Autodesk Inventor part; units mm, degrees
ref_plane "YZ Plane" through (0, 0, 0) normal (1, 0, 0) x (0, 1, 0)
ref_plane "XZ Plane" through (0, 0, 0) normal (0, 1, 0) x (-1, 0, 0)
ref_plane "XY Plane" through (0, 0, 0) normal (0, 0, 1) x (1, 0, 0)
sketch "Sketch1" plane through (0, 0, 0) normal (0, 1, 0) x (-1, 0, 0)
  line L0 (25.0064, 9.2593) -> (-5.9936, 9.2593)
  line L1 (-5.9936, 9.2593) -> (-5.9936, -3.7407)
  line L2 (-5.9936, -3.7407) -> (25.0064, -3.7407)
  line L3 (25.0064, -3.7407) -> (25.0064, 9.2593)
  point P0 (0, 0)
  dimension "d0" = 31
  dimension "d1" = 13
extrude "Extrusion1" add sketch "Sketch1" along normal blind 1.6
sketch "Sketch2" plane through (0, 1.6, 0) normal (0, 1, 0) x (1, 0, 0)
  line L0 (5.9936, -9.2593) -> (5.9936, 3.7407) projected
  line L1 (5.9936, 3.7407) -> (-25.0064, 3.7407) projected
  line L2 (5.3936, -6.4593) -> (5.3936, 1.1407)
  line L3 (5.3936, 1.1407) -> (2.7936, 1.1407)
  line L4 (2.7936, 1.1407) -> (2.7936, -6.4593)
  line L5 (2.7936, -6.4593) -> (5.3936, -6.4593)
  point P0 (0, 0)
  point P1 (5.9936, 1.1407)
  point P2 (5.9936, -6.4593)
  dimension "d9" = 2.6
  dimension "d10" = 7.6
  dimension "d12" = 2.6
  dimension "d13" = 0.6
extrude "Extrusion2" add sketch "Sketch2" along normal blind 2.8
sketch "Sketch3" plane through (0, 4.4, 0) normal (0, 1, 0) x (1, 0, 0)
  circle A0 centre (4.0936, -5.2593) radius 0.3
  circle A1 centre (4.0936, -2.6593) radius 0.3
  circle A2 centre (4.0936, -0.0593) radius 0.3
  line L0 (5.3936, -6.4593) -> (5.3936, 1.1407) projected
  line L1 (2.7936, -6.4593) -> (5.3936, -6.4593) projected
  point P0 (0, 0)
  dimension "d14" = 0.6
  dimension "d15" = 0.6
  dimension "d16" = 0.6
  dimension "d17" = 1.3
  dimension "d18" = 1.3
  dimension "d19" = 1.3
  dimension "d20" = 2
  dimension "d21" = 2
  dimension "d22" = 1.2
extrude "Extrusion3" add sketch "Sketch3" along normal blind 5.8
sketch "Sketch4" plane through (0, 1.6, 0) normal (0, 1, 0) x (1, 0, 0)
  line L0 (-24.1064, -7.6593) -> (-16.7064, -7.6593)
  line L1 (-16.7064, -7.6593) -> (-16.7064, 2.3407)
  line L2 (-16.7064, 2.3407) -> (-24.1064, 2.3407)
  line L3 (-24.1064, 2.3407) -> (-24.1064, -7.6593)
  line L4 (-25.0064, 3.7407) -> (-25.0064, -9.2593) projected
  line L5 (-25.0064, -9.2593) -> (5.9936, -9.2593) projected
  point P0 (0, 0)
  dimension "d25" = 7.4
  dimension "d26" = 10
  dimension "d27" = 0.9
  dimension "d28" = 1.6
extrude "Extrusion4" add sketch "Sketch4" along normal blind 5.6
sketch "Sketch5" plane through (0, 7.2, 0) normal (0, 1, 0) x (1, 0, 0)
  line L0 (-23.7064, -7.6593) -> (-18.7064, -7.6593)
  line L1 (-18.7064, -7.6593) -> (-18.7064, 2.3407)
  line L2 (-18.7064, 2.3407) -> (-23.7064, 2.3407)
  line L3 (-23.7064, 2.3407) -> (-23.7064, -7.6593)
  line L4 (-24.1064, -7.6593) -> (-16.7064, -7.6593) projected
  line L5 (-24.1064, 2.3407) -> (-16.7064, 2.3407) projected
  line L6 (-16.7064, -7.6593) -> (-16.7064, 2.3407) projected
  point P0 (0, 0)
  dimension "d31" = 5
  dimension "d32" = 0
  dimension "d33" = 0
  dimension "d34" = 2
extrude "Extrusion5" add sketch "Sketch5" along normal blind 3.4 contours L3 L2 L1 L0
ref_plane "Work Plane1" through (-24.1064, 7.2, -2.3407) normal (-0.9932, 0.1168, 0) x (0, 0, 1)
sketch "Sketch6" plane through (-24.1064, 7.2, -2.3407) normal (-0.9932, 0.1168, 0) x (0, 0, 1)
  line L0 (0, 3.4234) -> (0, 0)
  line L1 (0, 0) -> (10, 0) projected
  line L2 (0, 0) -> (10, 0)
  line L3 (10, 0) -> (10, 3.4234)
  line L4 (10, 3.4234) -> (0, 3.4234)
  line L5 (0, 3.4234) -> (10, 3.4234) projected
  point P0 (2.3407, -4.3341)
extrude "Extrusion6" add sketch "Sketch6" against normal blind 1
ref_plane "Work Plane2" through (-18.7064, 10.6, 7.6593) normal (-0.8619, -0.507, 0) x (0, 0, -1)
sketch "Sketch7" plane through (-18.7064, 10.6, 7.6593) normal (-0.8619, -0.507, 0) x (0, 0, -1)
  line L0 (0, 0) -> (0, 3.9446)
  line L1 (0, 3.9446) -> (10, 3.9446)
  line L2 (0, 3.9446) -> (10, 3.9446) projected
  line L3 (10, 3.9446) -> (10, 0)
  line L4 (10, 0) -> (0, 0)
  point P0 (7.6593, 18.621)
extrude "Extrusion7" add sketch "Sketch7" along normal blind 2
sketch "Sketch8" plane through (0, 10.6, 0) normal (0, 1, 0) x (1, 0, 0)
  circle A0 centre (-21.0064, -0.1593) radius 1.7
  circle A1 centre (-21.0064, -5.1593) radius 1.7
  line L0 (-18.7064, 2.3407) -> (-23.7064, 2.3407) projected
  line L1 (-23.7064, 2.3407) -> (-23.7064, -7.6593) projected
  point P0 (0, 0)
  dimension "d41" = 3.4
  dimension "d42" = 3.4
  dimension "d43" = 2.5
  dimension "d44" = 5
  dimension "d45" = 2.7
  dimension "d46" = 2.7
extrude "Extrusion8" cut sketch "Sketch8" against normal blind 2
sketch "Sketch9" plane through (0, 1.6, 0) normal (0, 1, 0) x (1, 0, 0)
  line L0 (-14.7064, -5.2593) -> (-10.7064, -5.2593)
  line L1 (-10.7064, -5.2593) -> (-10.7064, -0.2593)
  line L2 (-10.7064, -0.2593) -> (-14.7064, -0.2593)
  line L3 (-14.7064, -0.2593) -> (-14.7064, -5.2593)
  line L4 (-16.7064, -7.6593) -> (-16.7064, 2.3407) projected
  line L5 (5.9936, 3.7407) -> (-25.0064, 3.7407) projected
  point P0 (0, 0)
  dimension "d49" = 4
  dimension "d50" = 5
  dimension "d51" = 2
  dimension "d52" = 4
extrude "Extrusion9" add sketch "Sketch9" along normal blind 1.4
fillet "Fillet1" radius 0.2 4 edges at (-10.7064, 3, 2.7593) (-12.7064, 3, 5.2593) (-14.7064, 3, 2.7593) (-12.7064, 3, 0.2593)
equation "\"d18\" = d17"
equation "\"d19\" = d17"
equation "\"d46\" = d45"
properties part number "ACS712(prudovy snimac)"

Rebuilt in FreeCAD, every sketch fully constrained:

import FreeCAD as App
import Part
import Sketcher
from FreeCAD import Vector
Q = App.Units.Quantity


def edges_at(feature, points):
    """Names of the edges that pass closest to the given points."""
    edges = feature.Shape.Edges
    near = lambda p: min(range(len(edges)), key=lambda i: edges[i].distToShape(Part.Vertex(*p))[0])
    return sorted({f"Edge{near(p) + 1}" for p in points})

doc = App.newDocument("Part")
body = doc.addObject("PartDesign::Body", "Body")

# Sketch on XZ plane
sketch1 = body.newObject("Sketcher::SketchObject", "Sketch")
sketch1.AttachmentSupport = (doc.getObject("XZ_Plane"), [""])
sketch1.MapMode = "FlatFace"
sketch1.addGeometry([
    Part.LineSegment(Vector(-25, -4, 0), Vector(-25, 9, 0)),
    Part.LineSegment(Vector(-25, 9, 0), Vector(6, 9, 0)),
    Part.LineSegment(Vector(6, 9, 0), Vector(6, -4, 0)),
    Part.LineSegment(Vector(6, -4, 0), Vector(-25, -4, 0)),
], False)
sketch1.addConstraint([
    Sketcher.Constraint("Coincident", 0, 2, 1, 1),
    Sketcher.Constraint("Coincident", 1, 2, 2, 1),
    Sketcher.Constraint("Coincident", 2, 2, 3, 1),
    Sketcher.Constraint("Coincident", 3, 2, 0, 1),
    Sketcher.Constraint("Vertical", 0),
    Sketcher.Constraint("Horizontal", 1),
    Sketcher.Constraint("Vertical", 2),
    Sketcher.Constraint("Horizontal", 3),
    Sketcher.Constraint("DistanceX", 1, 1, 1, 2, Q("31 mm")),
    Sketcher.Constraint("DistanceY", 0, 1, 0, 2, Q("13 mm")),
    Sketcher.Constraint("DistanceX", 0, 2, -1, 1, Q("25.0064 mm")),
    Sketcher.Constraint("DistanceY", -1, 1, 0, 2, Q("9.2593 mm")),
])
pad1 = body.newObject("PartDesign::Pad", "Pad")
pad1.Profile = sketch1
pad1.Length = 1.6
pad1.Reversed = True

# Sketch on XZ plane
sketch2 = body.newObject("Sketcher::SketchObject", "Sketch001")
sketch2.AttachmentSupport = (doc.getObject("XZ_Plane"), [""])
sketch2.MapMode = "FlatFace"
sketch2.AttachmentOffset = App.Placement(Vector(0, 0, -1.6), App.Rotation())
sketch2.addGeometry([
    Part.LineSegment(Vector(2.8, 6.5, 0), Vector(5.4, 6.5, 0)),
    Part.LineSegment(Vector(5.4, 6.5, 0), Vector(5.4, -1.1, 0)),
    Part.LineSegment(Vector(5.4, -1.1, 0), Vector(2.8, -1.1, 0)),
    Part.LineSegment(Vector(2.8, -1.1, 0), Vector(2.8, 6.5, 0)),
], False)
sketch2.addConstraint([
    Sketcher.Constraint("Coincident", 0, 2, 1, 1),
    Sketcher.Constraint("Coincident", 1, 2, 2, 1),
    Sketcher.Constraint("Coincident", 2, 2, 3, 1),
    Sketcher.Constraint("Coincident", 3, 2, 0, 1),
    Sketcher.Constraint("Horizontal", 0),
    Sketcher.Constraint("Vertical", 1),
    Sketcher.Constraint("Horizontal", 2),
    Sketcher.Constraint("Vertical", 3),
    Sketcher.Constraint("DistanceX", 0, 1, 0, 2, Q("2.6 mm")),
    Sketcher.Constraint("DistanceY", 1, 2, 1, 1, Q("7.6 mm")),
    Sketcher.Constraint("DistanceX", -1, 1, 0, 2, Q("5.3936 mm")),
    Sketcher.Constraint("DistanceY", -1, 1, 0, 2, Q("6.4593 mm")),
])
pad2 = body.newObject("PartDesign::Pad", "Pad001")
pad2.Profile = sketch2
pad2.Length = 2.8
pad2.Reversed = True

# Sketch on XZ plane
sketch3 = body.newObject("Sketcher::SketchObject", "Sketch002")
sketch3.AttachmentSupport = (doc.getObject("XZ_Plane"), [""])
sketch3.MapMode = "FlatFace"
sketch3.AttachmentOffset = App.Placement(Vector(0, 0, -4.4), App.Rotation())
sketch3.addGeometry([
    Part.Circle(Vector(4.09, 5.26, 0), Vector(0, 0, 1), 0.3),
    Part.Circle(Vector(4.09, 2.66, 0), Vector(0, 0, 1), 0.3),
    Part.Circle(Vector(4.09, 0.06, 0), Vector(0, 0, 1), 0.3),
], False)
sketch3.addConstraint([
    Sketcher.Constraint("Equal", 0, 1),
    Sketcher.Constraint("Equal", 1, 2),
    Sketcher.Constraint("Vertical", 0, 3, 1, 3),
    Sketcher.Constraint("Vertical", 1, 3, 2, 3),
    Sketcher.Constraint("Diameter", 0, Q("0.6 mm")),
    Sketcher.Constraint("DistanceY", 1, 3, 0, 3, Q("2.6 mm")),
    Sketcher.Constraint("DistanceY", 2, 3, 1, 3, Q("2.6 mm")),
    Sketcher.Constraint("DistanceX", -1, 1, 0, 3, Q("4.0936 mm")),
    Sketcher.Constraint("DistanceY", -1, 1, 0, 3, Q("5.2593 mm")),
])
pad3 = body.newObject("PartDesign::Pad", "Pad002")
pad3.Profile = sketch3
pad3.Length = 5.8
pad3.Reversed = True

# Sketch on XZ plane
sketch4 = body.newObject("Sketcher::SketchObject", "Sketch003")
sketch4.AttachmentSupport = (doc.getObject("XZ_Plane"), [""])
sketch4.MapMode = "FlatFace"
sketch4.AttachmentOffset = App.Placement(Vector(0, 0, -1.6), App.Rotation())
sketch4.addGeometry([
    Part.LineSegment(Vector(-24, -2, 0), Vector(-24, 8, 0)),
    Part.LineSegment(Vector(-24, 8, 0), Vector(-17, 8, 0)),
    Part.LineSegment(Vector(-17, 8, 0), Vector(-17, -2, 0)),
    Part.LineSegment(Vector(-17, -2, 0), Vector(-24, -2, 0)),
], False)
sketch4.addConstraint([
    Sketcher.Constraint("Coincident", 0, 2, 1, 1),
    Sketcher.Constraint("Coincident", 1, 2, 2, 1),
    Sketcher.Constraint("Coincident", 2, 2, 3, 1),
    Sketcher.Constraint("Coincident", 3, 2, 0, 1),
    Sketcher.Constraint("Vertical", 0),
    Sketcher.Constraint("Horizontal", 1),
    Sketcher.Constraint("Vertical", 2),
    Sketcher.Constraint("Horizontal", 3),
    Sketcher.Constraint("DistanceY", 0, 1, 0, 2, Q("10 mm")),
    Sketcher.Constraint("DistanceX", 1, 1, 1, 2, Q("7.4 mm")),
    Sketcher.Constraint("DistanceX", 0, 2, -1, 1, Q("24.1064 mm")),
    Sketcher.Constraint("DistanceY", -1, 1, 0, 2, Q("7.6593 mm")),
])
pad4 = body.newObject("PartDesign::Pad", "Pad003")
pad4.Profile = sketch4
pad4.Length = 5.6
pad4.Reversed = True

# Sketch on XZ plane
sketch5 = body.newObject("Sketcher::SketchObject", "Sketch004")
sketch5.AttachmentSupport = (doc.getObject("XZ_Plane"), [""])
sketch5.MapMode = "FlatFace"
sketch5.AttachmentOffset = App.Placement(Vector(0, 0, -7.2), App.Rotation())
sketch5.addGeometry([
    Part.LineSegment(Vector(-24, -2, 0), Vector(-24, 8, 0)),
    Part.LineSegment(Vector(-24, 8, 0), Vector(-19, 8, 0)),
    Part.LineSegment(Vector(-19, 8, 0), Vector(-19, -2, 0)),
    Part.LineSegment(Vector(-19, -2, 0), Vector(-24, -2, 0)),
], False)
sketch5.addConstraint([
    Sketcher.Constraint("Coincident", 0, 2, 1, 1),
    Sketcher.Constraint("Coincident", 1, 2, 2, 1),
    Sketcher.Constraint("Coincident", 2, 2, 3, 1),
    Sketcher.Constraint("Coincident", 3, 2, 0, 1),
    Sketcher.Constraint("Vertical", 0),
    Sketcher.Constraint("Horizontal", 1),
    Sketcher.Constraint("Vertical", 2),
    Sketcher.Constraint("Horizontal", 3),
    Sketcher.Constraint("DistanceX", 1, 1, 1, 2, Q("5 mm")),
    Sketcher.Constraint("DistanceY", 0, 1, 0, 2, Q("10 mm")),
    Sketcher.Constraint("DistanceX", 0, 2, -1, 1, Q("23.7064 mm")),
    Sketcher.Constraint("DistanceY", -1, 1, 0, 2, Q("7.6593 mm")),
])
pad5 = body.newObject("PartDesign::Pad", "Pad004")
pad5.Profile = sketch5
pad5.Length = 3.4
pad5.Reversed = True

# Sketch on an angled plane
sketch6 = body.newObject("Sketcher::SketchObject", "Sketch005")
sketch6.Placement = App.Placement(Vector(-24.1064, 7.2, -2.3407), App.Rotation(Vector(0, 0, 1), Vector(0.116794833, 0.993156064, 0), Vector(-0.993156064, 0.116794833, 0), "ZXY"))
sketch6.addGeometry([
    Part.LineSegment(Vector(10, 3.4, 0), Vector(0, 3.4, 0)),
    Part.LineSegment(Vector(0, 3.4, 0), Vector(0, 0, 0)),
    Part.LineSegment(Vector(0, 0, 0), Vector(10, 0, 0)),
    Part.LineSegment(Vector(10, 0, 0), Vector(10, 3.4, 0)),
], False)
sketch6.addConstraint([
    Sketcher.Constraint("Coincident", 0, 2, 1, 1),
    Sketcher.Constraint("Coincident", 1, 2, 2, 1),
    Sketcher.Constraint("Coincident", 2, 2, 3, 1),
    Sketcher.Constraint("Coincident", 3, 2, 0, 1),
    Sketcher.Constraint("Horizontal", 0),
    Sketcher.Constraint("Vertical", 1),
    Sketcher.Constraint("Horizontal", 2),
    Sketcher.Constraint("Vertical", 3),
    Sketcher.Constraint("Coincident", 1, 2, -1, 1),
    Sketcher.Constraint("DistanceX", 0, 2, 0, 1, Q("10 mm")),
    Sketcher.Constraint("DistanceY", 1, 2, 1, 1, Q("3.4234 mm")),
])
pad6 = body.newObject("PartDesign::Pad", "Pad005")
pad6.Profile = sketch6
pad6.Length = 1
pad6.Reversed = True

# Sketch on an angled plane
sketch7 = body.newObject("Sketcher::SketchObject", "Sketch006")
sketch7.Placement = App.Placement(Vector(-18.7064, 10.6, 7.6593), App.Rotation(Vector(0, 0, -1), Vector(0.507020127, -0.861934215, 0), Vector(-0.861934215, -0.507020127, 0), "ZXY"))
sketch7.addGeometry([
    Part.LineSegment(Vector(0, 3.9, 0), Vector(0, 0, 0)),
    Part.LineSegment(Vector(0, 0, 0), Vector(10, 0, 0)),
    Part.LineSegment(Vector(10, 0, 0), Vector(10, 3.9, 0)),
    Part.LineSegment(Vector(10, 3.9, 0), Vector(0, 3.9, 0)),
], False)
sketch7.addConstraint([
    Sketcher.Constraint("Coincident", 0, 2, 1, 1),
    Sketcher.Constraint("Coincident", 1, 2, 2, 1),
    Sketcher.Constraint("Coincident", 2, 2, 3, 1),
    Sketcher.Constraint("Coincident", 3, 2, 0, 1),
    Sketcher.Constraint("Vertical", 0),
    Sketcher.Constraint("Horizontal", 1),
    Sketcher.Constraint("Vertical", 2),
    Sketcher.Constraint("Horizontal", 3),
    Sketcher.Constraint("Coincident", 0, 2, -1, 1),
    Sketcher.Constraint("DistanceX", 1, 1, 1, 2, Q("10 mm")),
    Sketcher.Constraint("DistanceY", 0, 2, 0, 1, Q("3.9446 mm")),
])
pad7 = body.newObject("PartDesign::Pad", "Pad006")
pad7.Profile = sketch7
pad7.Length = 2

# Sketch on XZ plane
sketch8 = body.newObject("Sketcher::SketchObject", "Sketch007")
sketch8.AttachmentSupport = (doc.getObject("XZ_Plane"), [""])
sketch8.MapMode = "FlatFace"
sketch8.AttachmentOffset = App.Placement(Vector(0, 0, -10.6), App.Rotation())
sketch8.addGeometry([
    Part.Circle(Vector(-21, 0.2, 0), Vector(0, 0, 1), 1.7),
    Part.Circle(Vector(-21, 5.2, 0), Vector(0, 0, 1), 1.7),
], False)
sketch8.addConstraint([
    Sketcher.Constraint("Equal", 0, 1),
    Sketcher.Constraint("Vertical", 0, 3, 1, 3),
    Sketcher.Constraint("Diameter", 0, Q("3.4 mm")),
    Sketcher.Constraint("DistanceY", 0, 3, 1, 3, Q("5 mm")),
    Sketcher.Constraint("DistanceX", 0, 3, -1, 1, Q("21.0064 mm")),
    Sketcher.Constraint("DistanceY", -1, 1, 0, 3, Q("0.1593 mm")),
])
pocket1 = body.newObject("PartDesign::Pocket", "Pocket")
pocket1.Profile = sketch8
pocket1.Length = 2
pocket1.Reversed = True

# Sketch on XZ plane
sketch9 = body.newObject("Sketcher::SketchObject", "Sketch008")
sketch9.AttachmentSupport = (doc.getObject("XZ_Plane"), [""])
sketch9.MapMode = "FlatFace"
sketch9.AttachmentOffset = App.Placement(Vector(0, 0, -1.6), App.Rotation())
sketch9.addGeometry([
    Part.LineSegment(Vector(-14.7, 0.3, 0), Vector(-14.7, 5.3, 0)),
    Part.LineSegment(Vector(-14.7, 5.3, 0), Vector(-10.7, 5.3, 0)),
    Part.LineSegment(Vector(-10.7, 5.3, 0), Vector(-10.7, 0.3, 0)),
    Part.LineSegment(Vector(-10.7, 0.3, 0), Vector(-14.7, 0.3, 0)),
], False)
sketch9.addConstraint([
    Sketcher.Constraint("Coincident", 0, 2, 1, 1),
    Sketcher.Constraint("Coincident", 1, 2, 2, 1),
    Sketcher.Constraint("Coincident", 2, 2, 3, 1),
    Sketcher.Constraint("Coincident", 3, 2, 0, 1),
    Sketcher.Constraint("Vertical", 0),
    Sketcher.Constraint("Horizontal", 1),
    Sketcher.Constraint("Vertical", 2),
    Sketcher.Constraint("Horizontal", 3),
    Sketcher.Constraint("DistanceX", 1, 1, 1, 2, Q("4 mm")),
    Sketcher.Constraint("DistanceY", 0, 1, 0, 2, Q("5 mm")),
    Sketcher.Constraint("DistanceX", 0, 2, -1, 1, Q("14.7064 mm")),
    Sketcher.Constraint("DistanceY", -1, 1, 0, 2, Q("5.2593 mm")),
])
pad8 = body.newObject("PartDesign::Pad", "Pad007")
pad8.Profile = sketch9
pad8.Length = 1.4
pad8.Reversed = True
doc.recompute()

fillet = body.newObject("PartDesign::Fillet", "Fillet")
fillet.Base = (pad8, edges_at(pad8, [
    (-10.706, 3, 2.759),
    (-12.706, 3, 5.259),
    (-14.706, 3, 2.759),
    (-12.706, 3, 0.259),
]))
fillet.Radius = 0.2

doc.recompute()
